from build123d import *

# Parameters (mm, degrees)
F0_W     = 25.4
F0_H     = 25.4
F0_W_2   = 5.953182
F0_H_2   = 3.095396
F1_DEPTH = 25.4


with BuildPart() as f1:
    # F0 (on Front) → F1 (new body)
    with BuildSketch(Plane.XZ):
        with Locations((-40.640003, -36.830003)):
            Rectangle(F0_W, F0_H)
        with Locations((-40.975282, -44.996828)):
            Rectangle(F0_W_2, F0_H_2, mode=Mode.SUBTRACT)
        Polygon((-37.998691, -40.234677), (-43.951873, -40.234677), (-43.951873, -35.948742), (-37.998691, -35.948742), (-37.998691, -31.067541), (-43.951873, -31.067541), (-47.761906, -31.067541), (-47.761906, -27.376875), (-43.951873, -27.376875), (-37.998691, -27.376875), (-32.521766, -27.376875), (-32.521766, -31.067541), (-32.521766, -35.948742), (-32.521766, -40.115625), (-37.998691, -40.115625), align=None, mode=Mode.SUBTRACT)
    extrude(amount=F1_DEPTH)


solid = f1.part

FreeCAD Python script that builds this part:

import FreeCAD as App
import Part
import Sketcher
Q = App.Units.Quantity


def add_polygon(sketch, points):
    """Adds a closed chain of lines whose ends are joined by coincident constraints."""
    first, n = sketch.GeometryCount, len(points)
    for a, b in zip(points, points[1:] + points[:1]):
        sketch.addGeometry(Part.LineSegment(App.Vector(*a, 0), App.Vector(*b, 0)), False)
    for i in range(n):
        sketch.addConstraint(Sketcher.Constraint("Coincident", first + i, 2, first + (i + 1) % n, 1))

doc = App.newDocument("Part")
params = doc.addObject("Spreadsheet::Sheet", "Params")
for row, (alias, value) in enumerate([
    ("sketch1_width", "1 in"),
    ("pad1_length", "1 in"),
], start=1):
    params.set(f"A{row}", alias)
    params.set(f"B{row}", "=" + value)
    params.setAlias(f"B{row}", alias)

body = doc.addObject("PartDesign::Body", "Body")

# Sketch on XZ plane
sketch1 = body.newObject("Sketcher::SketchObject", "Sketch")
sketch1.AttachmentSupport = (doc.getObject("XZ_Plane"), [""])
sketch1.MapMode = "FlatFace"
add_polygon(sketch1, [(-53.34, -24.13), (-53.34, -49.53), (-27.94, -49.53), (-27.94, -24.13)])  # lines 0-3
add_polygon(sketch1, [(-38, -46.54), (-43.95, -46.54), (-43.95, -43.45), (-38, -43.45)])  # lines 4-7
add_polygon(sketch1, [(-38, -40.12), (-38, -40.23), (-43.95, -40.23), (-43.95, -35.95), (-38, -35.95), (-38, -31.07), (-47.76, -31.07), (-47.76, -27.38), (-32.52, -27.38), (-32.52, -40.12)])  # lines 8-17
sketch1.addConstraint([
    Sketcher.Constraint("Vertical", 0),
    Sketcher.Constraint("Horizontal", 1),
    Sketcher.Constraint("Vertical", 2),
    Sketcher.Constraint("Horizontal", 3),
    Sketcher.Constraint("Horizontal", 4),
    Sketcher.Constraint("Vertical", 5),
    Sketcher.Constraint("Horizontal", 6),
    Sketcher.Constraint("Vertical", 7),
    Sketcher.Constraint("Vertical", 8),
    Sketcher.Constraint("Horizontal", 9),
    Sketcher.Constraint("Vertical", 10),
    Sketcher.Constraint("Horizontal", 11),
    Sketcher.Constraint("Vertical", 12),
    Sketcher.Constraint("Horizontal", 13),
    Sketcher.Constraint("Vertical", 14),
    Sketcher.Constraint("Horizontal", 15),
    Sketcher.Constraint("Vertical", 16),
    Sketcher.Constraint("Horizontal", 17),
    Sketcher.Constraint("Vertical", 7, 2, 8, 2),
    Sketcher.Constraint("Vertical", 5, 2, 9, 2),
    Sketcher.Constraint("Vertical", 8, 2, 11, 2),
    Sketcher.Constraint("Equal", 3, 0),
    Sketcher.Constraint("DistanceX", 1, 1, 1, 2, Q("1 in")),
    Sketcher.Constraint("DistanceX", 0, 2, -1, 1, Q("2.1000001 in")),
    Sketcher.Constraint("DistanceY", 0, 2, -1, 1, Q("1.9500001 in")),
    Sketcher.Constraint("DistanceY", 12, 1, 12, 2, 4.881201),
    Sketcher.Constraint("DistanceX", 4, 2, 4, 1, 5.953182),
    Sketcher.Constraint("DistanceX", 15, 1, 15, 2, 15.24014),
    Sketcher.Constraint("DistanceY", 8, 2, 8, 1, 0.119052),
    Sketcher.Constraint("DistanceY", 16, 2, 16, 1, 12.73875),
    Sketcher.Constraint("DistanceY", 7, 2, 16, 2, 6.428901),
    Sketcher.Constraint("DistanceX", 13, 2, 13, 1, 9.763215),
    Sketcher.Constraint("DistanceY", 5, 1, 5, 2, 3.095396),
    Sketcher.Constraint("DistanceY", 10, 1, 10, 2, 4.285935),
    Sketcher.Constraint("DistanceY", 5, 2, -1, 1, 43.44913),
    Sketcher.Constraint("DistanceX", 6, 2, -1, 1, 37.998691),
])
sketch1.setExpression("Constraints[40]", "Params.sketch1_width")
pad1 = body.newObject("PartDesign::Pad", "Pad")
pad1.Profile = sketch1
pad1.setExpression("Length", "Params.pad1_length")

doc.recompute()
